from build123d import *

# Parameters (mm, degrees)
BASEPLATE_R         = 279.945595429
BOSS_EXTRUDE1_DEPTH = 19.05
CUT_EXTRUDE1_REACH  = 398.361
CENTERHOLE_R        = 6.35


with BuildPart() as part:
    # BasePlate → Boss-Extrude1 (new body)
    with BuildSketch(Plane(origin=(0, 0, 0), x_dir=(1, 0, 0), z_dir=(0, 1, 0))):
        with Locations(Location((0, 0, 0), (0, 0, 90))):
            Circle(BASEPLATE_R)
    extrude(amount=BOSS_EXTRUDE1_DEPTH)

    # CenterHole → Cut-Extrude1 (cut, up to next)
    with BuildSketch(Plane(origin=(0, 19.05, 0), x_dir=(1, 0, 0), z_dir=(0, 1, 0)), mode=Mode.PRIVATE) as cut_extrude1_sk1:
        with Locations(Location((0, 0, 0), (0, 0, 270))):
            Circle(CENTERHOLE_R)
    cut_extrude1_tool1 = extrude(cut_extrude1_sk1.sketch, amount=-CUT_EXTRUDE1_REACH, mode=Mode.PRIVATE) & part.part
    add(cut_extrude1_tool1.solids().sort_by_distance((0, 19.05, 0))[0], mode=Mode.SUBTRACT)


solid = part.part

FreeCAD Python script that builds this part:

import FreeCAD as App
import Part
import Sketcher
from FreeCAD import Vector
Q = App.Units.Quantity

doc = App.newDocument("Part")
params = doc.addObject("Spreadsheet::Sheet", "Params")
for row, (alias, value) in enumerate([
    ("pad1_length", "0.75 in"),
    ("sketch2_diameter", "0.5 in"),
], start=1):
    params.set(f"A{row}", alias)
    params.set(f"B{row}", "=" + value)
    params.setAlias(f"B{row}", alias)

body = doc.addObject("PartDesign::Body", "Body")

sketch1 = body.newObject("Sketcher::SketchObject", "Sketch")
sketch1.AttachmentSupport = (doc.getObject("XZ_Plane"), [""])
sketch1.MapMode = "FlatFace"
sketch1.addGeometry(Part.Circle(Vector(0, 0, 0), Vector(0, 0, 1), 279.945595), False)
sketch1.addConstraint([
    Sketcher.Constraint("Coincident", 0, 3, -1, 1),
    Sketcher.Constraint("Diameter", 0, Q("559.891191 mm")),
])
pad1 = body.newObject("PartDesign::Pad", "Pad")
pad1.Profile = sketch1
pad1.setExpression("Length", "Params.pad1_length")
pad1.Reversed = True

sketch2 = body.newObject("Sketcher::SketchObject", "Sketch001")
sketch2.AttachmentSupport = (doc.getObject("XZ_Plane"), [""])
sketch2.MapMode = "FlatFace"
sketch2.AttachmentOffset = App.Placement(Vector(0, 0, -0.75 * 25.4), App.Rotation())
sketch2.addGeometry(Part.Circle(Vector(0, 0, 0), Vector(0, 0, 1), 6.35), False)
sketch2.addConstraint([
    Sketcher.Constraint("Coincident", 0, 3, -1, 1),
    Sketcher.Constraint("Diameter", 0, Q("0.5 in")),
])
sketch2.setExpression("Constraints[1]", "Params.sketch2_diameter")
pocket1 = body.newObject("PartDesign::Pocket", "Pocket")
pocket1.Profile = sketch2
pocket1.Type = "UpToFirst"
pocket1.Reversed = True

doc.recompute()
